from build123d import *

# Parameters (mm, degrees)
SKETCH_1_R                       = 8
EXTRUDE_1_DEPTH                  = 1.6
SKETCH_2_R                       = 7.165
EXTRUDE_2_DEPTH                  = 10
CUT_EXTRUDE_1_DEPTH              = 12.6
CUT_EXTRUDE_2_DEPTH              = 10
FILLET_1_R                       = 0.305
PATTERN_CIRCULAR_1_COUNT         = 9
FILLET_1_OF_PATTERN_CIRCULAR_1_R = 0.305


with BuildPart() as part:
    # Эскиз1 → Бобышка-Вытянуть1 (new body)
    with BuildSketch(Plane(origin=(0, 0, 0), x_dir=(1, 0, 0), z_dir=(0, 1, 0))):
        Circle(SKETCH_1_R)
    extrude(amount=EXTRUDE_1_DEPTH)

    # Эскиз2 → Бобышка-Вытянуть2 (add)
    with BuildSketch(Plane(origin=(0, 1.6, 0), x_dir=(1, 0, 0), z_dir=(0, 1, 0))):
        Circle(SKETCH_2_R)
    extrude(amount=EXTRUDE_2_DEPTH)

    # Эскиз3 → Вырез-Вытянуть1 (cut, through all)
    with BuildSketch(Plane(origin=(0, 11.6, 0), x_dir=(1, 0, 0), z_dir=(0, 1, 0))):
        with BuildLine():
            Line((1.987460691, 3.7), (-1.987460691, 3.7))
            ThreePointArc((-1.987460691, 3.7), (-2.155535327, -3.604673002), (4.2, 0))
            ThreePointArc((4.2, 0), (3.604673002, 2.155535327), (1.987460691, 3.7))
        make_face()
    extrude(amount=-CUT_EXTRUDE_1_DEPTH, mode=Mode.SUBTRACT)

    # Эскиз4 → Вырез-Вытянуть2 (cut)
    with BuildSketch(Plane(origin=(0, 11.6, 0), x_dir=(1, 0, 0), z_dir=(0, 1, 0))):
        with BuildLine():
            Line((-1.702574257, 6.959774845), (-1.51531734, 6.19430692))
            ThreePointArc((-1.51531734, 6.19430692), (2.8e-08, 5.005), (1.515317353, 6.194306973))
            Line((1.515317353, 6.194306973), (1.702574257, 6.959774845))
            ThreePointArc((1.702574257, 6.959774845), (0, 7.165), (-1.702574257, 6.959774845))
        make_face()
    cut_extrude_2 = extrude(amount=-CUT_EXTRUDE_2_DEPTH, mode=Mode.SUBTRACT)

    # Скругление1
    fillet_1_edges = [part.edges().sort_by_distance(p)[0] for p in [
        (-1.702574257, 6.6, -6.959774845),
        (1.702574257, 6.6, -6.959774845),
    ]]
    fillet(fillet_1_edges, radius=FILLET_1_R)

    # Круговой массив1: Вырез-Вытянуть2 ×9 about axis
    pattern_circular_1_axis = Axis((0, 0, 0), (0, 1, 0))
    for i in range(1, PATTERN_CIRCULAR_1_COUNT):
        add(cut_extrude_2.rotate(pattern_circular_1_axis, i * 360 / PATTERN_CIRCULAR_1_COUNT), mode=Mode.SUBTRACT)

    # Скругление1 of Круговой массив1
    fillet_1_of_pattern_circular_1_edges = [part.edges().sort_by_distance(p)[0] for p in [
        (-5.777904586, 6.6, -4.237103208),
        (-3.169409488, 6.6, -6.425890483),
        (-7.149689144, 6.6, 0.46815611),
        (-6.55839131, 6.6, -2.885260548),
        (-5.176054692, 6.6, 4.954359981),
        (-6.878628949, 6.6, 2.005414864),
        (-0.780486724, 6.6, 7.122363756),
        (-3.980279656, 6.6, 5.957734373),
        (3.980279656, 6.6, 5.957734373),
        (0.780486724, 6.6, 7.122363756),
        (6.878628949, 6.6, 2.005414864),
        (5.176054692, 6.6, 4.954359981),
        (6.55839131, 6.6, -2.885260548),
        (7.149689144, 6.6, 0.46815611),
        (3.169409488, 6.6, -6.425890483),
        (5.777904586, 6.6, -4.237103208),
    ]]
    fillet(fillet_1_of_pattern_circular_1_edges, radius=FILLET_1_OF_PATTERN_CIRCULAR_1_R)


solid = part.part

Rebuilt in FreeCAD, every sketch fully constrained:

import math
import FreeCAD as App
import Part
import Sketcher

V = App.Vector


def edges_at(feature, points):
    """Names of the edges that pass closest to the given points."""
    edges = feature.Shape.Edges
    near = lambda p: min(range(len(edges)), key=lambda i: edges[i].distToShape(Part.Vertex(*p))[0])
    return sorted({f"Edge{near(p) + 1}" for p in points})

doc = App.newDocument("Part")
params = doc.addObject("Spreadsheet::Sheet", "Params")
for row, (alias, value) in enumerate([
    ("sketch1_diameter", "16 mm"),
    ("pad1_length", "1.6 mm"),
    ("sketch2_diameter", "14.33 mm"),
    ("pad2_length", "10 mm"),
    ("sketch3_radius", "4.2 mm"),
    ("sketch4_radius", "1.56 mm"),
    ("pocket2_length", "10 mm"),
    ("fillet_radius", "0.305 mm"),
    ("fillet2_radius", "0.305 mm"),
], start=1):
    params.set(f"A{row}", alias)
    params.set(f"B{row}", "=" + value)
    params.setAlias(f"B{row}", alias)

body = doc.addObject("PartDesign::Body", "Body")

# Sketch on XZ plane
sketch1 = doc.addObject("Sketcher::SketchObject", "Sketch")
body.addObject(sketch1)
sketch1.AttachmentSupport = (doc.XZ_Plane, [""])
sketch1.MapMode = "FlatFace"
sketch1.addGeometry(Part.Circle(V(0, 0, 0), V(0, 0, 1), 8), False)
sketch1.addConstraint([
    Sketcher.Constraint("Coincident", 0, 3, -1, 1),
    Sketcher.Constraint("Diameter", 0, 16.0),
])
sketch1.setExpression("Constraints[1]", "Params.sketch1_diameter")
pad1 = doc.addObject("PartDesign::Pad", "Pad")
body.addObject(pad1)
pad1.Profile = sketch1
pad1.setExpression("Length", "Params.pad1_length")
pad1.Reversed = True

# Sketch on XZ plane
sketch2 = doc.addObject("Sketcher::SketchObject", "Sketch001")
body.addObject(sketch2)
sketch2.AttachmentSupport = (doc.XZ_Plane, [""])
sketch2.MapMode = "FlatFace"
sketch2.AttachmentOffset = App.Placement(V(0, 0, -1.6), App.Rotation())
sketch2.addGeometry(Part.Circle(V(0, 0, 0), V(0, 0, 1), 7), False)
sketch2.addConstraint([
    Sketcher.Constraint("Coincident", 0, 3, -1, 1),
    Sketcher.Constraint("Diameter", 0, 14.33),
])
sketch2.setExpression("Constraints[1]", "Params.sketch2_diameter")
pad2 = doc.addObject("PartDesign::Pad", "Pad001")
body.addObject(pad2)
pad2.Profile = sketch2
pad2.setExpression("Length", "Params.pad2_length")
pad2.Reversed = True

# Sketch on XZ plane
sketch3 = doc.addObject("Sketcher::SketchObject", "Sketch002")
body.addObject(sketch3)
sketch3.AttachmentSupport = (doc.XZ_Plane, [""])
sketch3.MapMode = "FlatFace"
sketch3.AttachmentOffset = App.Placement(V(0, 0, -11.6), App.Rotation())
sketch3.addGeometry([
    Part.LineSegment(V(2, -3.7, 0), V(-2, -3.7, 0)),
    Part.ArcOfCircle(Part.Circle(V(0, 0, 0), V(0, 0, 1), 4.2), math.radians(0), math.radians(242)),
    Part.ArcOfCircle(Part.Circle(V(0, 0, 0), V(0, 0, 1), 4.2), math.radians(-62), math.radians(0)),
], False)
sketch3.addConstraint([
    Sketcher.Constraint("Coincident", 0, 2, 1, 2),
    Sketcher.Constraint("Tangent", 1, 1, 2, 2),
    Sketcher.Constraint("Coincident", 2, 1, 0, 1),
    Sketcher.Constraint("Horizontal", 0),
    Sketcher.Constraint("Coincident", 1, 3, -1, 1),
    Sketcher.Constraint("Equal", 1, 2),
    Sketcher.Constraint("PointOnObject", 1, 1, -1),
    Sketcher.Constraint("Radius", 1, 4.2),
    Sketcher.Constraint("DistanceY", 0, 2, -1, 1, 3.7),
])
sketch3.setExpression("Constraints[7]", "Params.sketch3_radius")
pocket1 = doc.addObject("PartDesign::Pocket", "Pocket")
body.addObject(pocket1)
pocket1.Profile = sketch3
pocket1.Type = "ThroughAll"
pocket1.Reversed = True

# Sketch on XZ plane
sketch4 = doc.addObject("Sketcher::SketchObject", "Sketch003")
body.addObject(sketch4)
sketch4.AttachmentSupport = (doc.XZ_Plane, [""])
sketch4.MapMode = "FlatFace"
sketch4.AttachmentOffset = App.Placement(V(0, 0, -11.6), App.Rotation())
sketch4.addGeometry([
    Part.LineSegment(V(-1.7, -7, 0), V(-1.5, -6.2, 0)),
    Part.ArcOfCircle(Part.Circle(V(0, -6.6, 0), V(0, 0, 1), 1.6), math.radians(14), math.radians(166)),
    Part.LineSegment(V(1.5, -6.2, 0), V(1.7, -7, 0)),
    Part.ArcOfCircle(Part.Circle(V(0, 0, 0), V(0, 0, 1), 7.2), math.radians(-104), math.radians(-76)),
], False)
sketch4.addConstraint([
    Sketcher.Constraint("Tangent", 0, 2, 1, 2),
    Sketcher.Constraint("Tangent", 1, 1, 2, 1),
    Sketcher.Constraint("Coincident", 2, 2, 3, 2),
    Sketcher.Constraint("Coincident", 3, 1, 0, 1),
    Sketcher.Constraint("Coincident", 3, 3, -1, 1),
    Sketcher.Constraint("Symmetric", 0, 2, 1, 1, -2),
    Sketcher.Constraint("Radius", 1, 1.56),
    Sketcher.Constraint("Radius", 3, 7.165),
    Sketcher.Constraint("DistanceY", 1, 3, -1, 1, 6.565),
    Sketcher.Constraint("Distance", 0, 0.78804),
])
sketch4.setExpression("Constraints[6]", "Params.sketch4_radius")
pocket2 = doc.addObject("PartDesign::Pocket", "Pocket001")
body.addObject(pocket2)
pocket2.Profile = sketch4
pocket2.setExpression("Length", "Params.pocket2_length")
pocket2.Reversed = True
doc.recompute()

fillet = doc.addObject("PartDesign::Fillet", "Fillet")
body.addObject(fillet)
fillet.Base = (pocket2, edges_at(pocket2, [(-1.703, 6.6, -6.96), (1.703, 6.6, -6.96)]))
fillet.setExpression("Radius", "Params.fillet_radius")
doc.recompute()

polarpattern = doc.addObject("PartDesign::PolarPattern", "PolarPattern")
body.addObject(polarpattern)
polarpattern.Originals = [pocket2]
polarpattern.Axis = (doc.Y_Axis, [""])
polarpattern.Angle = 360
polarpattern.Occurrences = 9
body.Tip = polarpattern
doc.recompute()

fillet2 = doc.addObject("PartDesign::Fillet", "Fillet001")
body.addObject(fillet2)
fillet2.Base = (polarpattern, edges_at(polarpattern, [
    (-5.778, 6.6, -4.237),
    (-3.169, 6.6, -6.426),
    (-7.15, 6.6, 0.468),
    (-6.558, 6.6, -2.885),
    (-5.176, 6.6, 4.954),
    (-6.879, 6.6, 2.005),
    (-0.78, 6.6, 7.122),
    (-3.98, 6.6, 5.958),
    (3.98, 6.6, 5.958),
    (0.78, 6.6, 7.122),
    (6.879, 6.6, 2.005),
    (5.176, 6.6, 4.954),
    (6.558, 6.6, -2.885),
    (7.15, 6.6, 0.468),
    (3.169, 6.6, -6.426),
    (5.778, 6.6, -4.237),
]))
fillet2.setExpression("Radius", "Params.fillet2_radius")

doc.recompute()
